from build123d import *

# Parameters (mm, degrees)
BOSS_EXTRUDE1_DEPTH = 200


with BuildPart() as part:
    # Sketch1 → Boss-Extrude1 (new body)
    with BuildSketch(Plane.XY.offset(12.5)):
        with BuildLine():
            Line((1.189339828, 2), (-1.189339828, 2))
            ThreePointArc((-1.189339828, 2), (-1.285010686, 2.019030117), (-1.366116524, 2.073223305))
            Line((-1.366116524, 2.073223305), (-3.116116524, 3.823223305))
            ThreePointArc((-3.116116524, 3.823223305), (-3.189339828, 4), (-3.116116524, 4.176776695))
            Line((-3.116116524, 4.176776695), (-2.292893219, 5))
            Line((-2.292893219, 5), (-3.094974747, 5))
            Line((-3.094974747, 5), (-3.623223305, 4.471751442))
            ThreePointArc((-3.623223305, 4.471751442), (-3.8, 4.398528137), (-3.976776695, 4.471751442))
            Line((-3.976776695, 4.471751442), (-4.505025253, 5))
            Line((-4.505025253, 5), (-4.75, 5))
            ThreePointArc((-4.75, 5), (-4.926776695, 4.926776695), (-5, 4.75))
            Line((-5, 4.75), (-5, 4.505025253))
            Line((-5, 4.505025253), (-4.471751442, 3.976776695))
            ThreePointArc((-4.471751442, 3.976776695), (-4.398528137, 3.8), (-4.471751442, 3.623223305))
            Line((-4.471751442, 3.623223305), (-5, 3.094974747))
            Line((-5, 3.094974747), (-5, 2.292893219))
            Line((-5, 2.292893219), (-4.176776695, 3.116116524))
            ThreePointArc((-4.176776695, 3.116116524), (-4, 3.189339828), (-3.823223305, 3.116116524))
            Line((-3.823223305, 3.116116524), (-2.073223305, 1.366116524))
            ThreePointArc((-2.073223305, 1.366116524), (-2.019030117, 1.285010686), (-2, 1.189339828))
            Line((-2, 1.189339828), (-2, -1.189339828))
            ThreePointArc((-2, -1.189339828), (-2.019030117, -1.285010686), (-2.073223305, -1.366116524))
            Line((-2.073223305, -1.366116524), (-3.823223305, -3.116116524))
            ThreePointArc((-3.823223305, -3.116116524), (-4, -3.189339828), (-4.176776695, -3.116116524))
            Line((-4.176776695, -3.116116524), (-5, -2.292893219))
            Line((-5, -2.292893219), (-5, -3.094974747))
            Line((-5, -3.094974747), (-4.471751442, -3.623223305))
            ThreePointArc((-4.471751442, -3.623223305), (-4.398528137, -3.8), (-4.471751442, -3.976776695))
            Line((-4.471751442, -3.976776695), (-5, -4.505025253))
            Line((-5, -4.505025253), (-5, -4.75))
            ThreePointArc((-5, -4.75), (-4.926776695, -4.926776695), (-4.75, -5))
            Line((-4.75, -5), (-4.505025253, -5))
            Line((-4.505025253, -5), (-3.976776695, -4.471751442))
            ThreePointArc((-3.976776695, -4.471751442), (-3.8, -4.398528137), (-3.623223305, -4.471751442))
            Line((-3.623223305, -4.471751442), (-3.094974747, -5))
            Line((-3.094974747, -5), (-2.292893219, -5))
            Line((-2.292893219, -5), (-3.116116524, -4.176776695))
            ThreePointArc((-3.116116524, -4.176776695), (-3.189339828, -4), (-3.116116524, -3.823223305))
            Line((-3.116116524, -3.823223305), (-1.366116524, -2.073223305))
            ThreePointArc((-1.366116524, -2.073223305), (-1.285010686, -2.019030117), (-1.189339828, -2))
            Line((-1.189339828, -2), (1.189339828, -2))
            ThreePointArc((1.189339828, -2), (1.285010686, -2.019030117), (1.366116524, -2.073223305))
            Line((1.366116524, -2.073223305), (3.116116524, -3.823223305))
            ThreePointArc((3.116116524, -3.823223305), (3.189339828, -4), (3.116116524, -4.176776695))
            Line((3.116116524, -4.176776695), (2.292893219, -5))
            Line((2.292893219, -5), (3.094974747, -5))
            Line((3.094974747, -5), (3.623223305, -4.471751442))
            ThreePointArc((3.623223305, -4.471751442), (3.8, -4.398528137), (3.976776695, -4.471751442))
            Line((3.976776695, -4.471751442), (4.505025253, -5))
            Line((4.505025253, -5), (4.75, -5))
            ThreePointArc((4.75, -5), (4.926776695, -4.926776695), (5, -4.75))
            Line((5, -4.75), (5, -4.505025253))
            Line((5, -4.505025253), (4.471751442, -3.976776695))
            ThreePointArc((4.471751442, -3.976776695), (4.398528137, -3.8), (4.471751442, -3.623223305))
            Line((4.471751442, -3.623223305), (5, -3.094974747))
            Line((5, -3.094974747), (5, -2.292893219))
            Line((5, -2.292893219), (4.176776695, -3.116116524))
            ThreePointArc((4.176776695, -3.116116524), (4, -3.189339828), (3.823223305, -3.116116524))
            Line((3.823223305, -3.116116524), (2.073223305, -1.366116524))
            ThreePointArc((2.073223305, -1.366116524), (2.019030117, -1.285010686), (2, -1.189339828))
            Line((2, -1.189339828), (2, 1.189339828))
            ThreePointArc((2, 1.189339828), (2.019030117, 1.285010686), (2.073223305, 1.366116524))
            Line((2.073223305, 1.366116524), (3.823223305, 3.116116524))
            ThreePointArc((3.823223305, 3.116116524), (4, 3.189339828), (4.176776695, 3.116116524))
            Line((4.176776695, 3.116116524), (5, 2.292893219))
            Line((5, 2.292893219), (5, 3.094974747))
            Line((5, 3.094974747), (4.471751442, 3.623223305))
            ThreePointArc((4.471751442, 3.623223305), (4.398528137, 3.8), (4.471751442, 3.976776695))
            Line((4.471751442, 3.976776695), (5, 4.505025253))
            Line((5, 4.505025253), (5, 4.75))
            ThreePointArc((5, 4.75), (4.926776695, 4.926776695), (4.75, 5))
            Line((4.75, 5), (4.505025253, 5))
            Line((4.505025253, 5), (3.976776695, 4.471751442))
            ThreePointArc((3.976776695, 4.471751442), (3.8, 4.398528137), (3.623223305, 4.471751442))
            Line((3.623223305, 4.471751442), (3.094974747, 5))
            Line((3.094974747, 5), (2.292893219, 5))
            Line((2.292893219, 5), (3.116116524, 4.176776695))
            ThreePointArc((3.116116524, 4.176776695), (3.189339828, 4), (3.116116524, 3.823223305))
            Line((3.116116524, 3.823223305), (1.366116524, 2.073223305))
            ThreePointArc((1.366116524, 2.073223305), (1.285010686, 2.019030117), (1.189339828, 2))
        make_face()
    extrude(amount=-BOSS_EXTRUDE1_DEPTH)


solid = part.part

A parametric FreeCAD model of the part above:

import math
import FreeCAD as App
import Part
import Sketcher
from FreeCAD import Vector
Q = App.Units.Quantity

doc = App.newDocument("Part")
body = doc.addObject("PartDesign::Body", "Body")

sketch1 = body.newObject("Sketcher::SketchObject", "Sketch")
sketch1.AttachmentSupport = (doc.getObject("XY_Plane"), [""])
sketch1.MapMode = "FlatFace"
sketch1.AttachmentOffset = App.Placement(Vector(0, 0, 12.5), App.Rotation())
sketch1.addGeometry([
    Part.LineSegment(Vector(1.19, 2, 0), Vector(-1.19, 2, 0)),
    Part.ArcOfCircle(Part.Circle(Vector(-1.19, 2.25, 0), Vector(0, 0, 1), 0.25), math.radians(-135), math.radians(-90)),
    Part.LineSegment(Vector(-1.37, 2.07, 0), Vector(-3.12, 3.82, 0)),
    Part.ArcOfCircle(Part.Circle(Vector(-2.94, 4, 0), Vector(0, 0, 1), 0.25), math.radians(135), math.radians(225)),
    Part.LineSegment(Vector(-3.12, 4.18, 0), Vector(-2.29, 5, 0)),
    Part.LineSegment(Vector(-2.29, 5, 0), Vector(-3.09, 5, 0)),
    Part.LineSegment(Vector(-3.09, 5, 0), Vector(-3.62, 4.47, 0)),
    Part.ArcOfCircle(Part.Circle(Vector(-3.8, 4.65, 0), Vector(0, 0, 1), 0.25), math.radians(-135), math.radians(-45)),
    Part.LineSegment(Vector(-3.98, 4.47, 0), Vector(-4.51, 5, 0)),
    Part.LineSegment(Vector(-4.51, 5, 0), Vector(-4.75, 5, 0)),
    Part.ArcOfCircle(Part.Circle(Vector(-4.75, 4.75, 0), Vector(0, 0, 1), 0.25), math.radians(90), math.radians(180)),
    Part.LineSegment(Vector(-5, 4.75, 0), Vector(-5, 4.51, 0)),
    Part.LineSegment(Vector(-5, 4.51, 0), Vector(-4.47, 3.98, 0)),
    Part.ArcOfCircle(Part.Circle(Vector(-4.65, 3.8, 0), Vector(0, 0, 1), 0.25), math.radians(-45), math.radians(45)),
    Part.LineSegment(Vector(-4.47, 3.62, 0), Vector(-5, 3.09, 0)),
    Part.LineSegment(Vector(-5, 3.09, 0), Vector(-5, 2.29, 0)),
    Part.LineSegment(Vector(-5, 2.29, 0), Vector(-4.18, 3.12, 0)),
    Part.ArcOfCircle(Part.Circle(Vector(-4, 2.94, 0), Vector(0, 0, 1), 0.25), math.radians(45), math.radians(135)),
    Part.LineSegment(Vector(-3.82, 3.12, 0), Vector(-2.07, 1.37, 0)),
    Part.ArcOfCircle(Part.Circle(Vector(-2.25, 1.19, 0), Vector(0, 0, 1), 0.25), math.radians(0), math.radians(45)),
    Part.LineSegment(Vector(-2, 1.19, 0), Vector(-2, -1.19, 0)),
    Part.ArcOfCircle(Part.Circle(Vector(-2.25, -1.19, 0), Vector(0, 0, 1), 0.25), math.radians(-45), math.radians(0)),
    Part.LineSegment(Vector(-2.07, -1.37, 0), Vector(-3.82, -3.12, 0)),
    Part.ArcOfCircle(Part.Circle(Vector(-4, -2.94, 0), Vector(0, 0, 1), 0.25), math.radians(-135), math.radians(-45)),
    Part.LineSegment(Vector(-4.18, -3.12, 0), Vector(-5, -2.29, 0)),
    Part.LineSegment(Vector(-5, -2.29, 0), Vector(-5, -3.09, 0)),
    Part.LineSegment(Vector(-5, -3.09, 0), Vector(-4.47, -3.62, 0)),
    Part.ArcOfCircle(Part.Circle(Vector(-4.65, -3.8, 0), Vector(0, 0, 1), 0.25), math.radians(-45), math.radians(45)),
    Part.LineSegment(Vector(-4.47, -3.98, 0), Vector(-5, -4.51, 0)),
    Part.LineSegment(Vector(-5, -4.51, 0), Vector(-5, -4.75, 0)),
    Part.ArcOfCircle(Part.Circle(Vector(-4.75, -4.75, 0), Vector(0, 0, 1), 0.25), math.radians(-180), math.radians(-90)),
    Part.LineSegment(Vector(-4.75, -5, 0), Vector(-4.51, -5, 0)),
    Part.LineSegment(Vector(-4.51, -5, 0), Vector(-3.98, -4.47, 0)),
    Part.ArcOfCircle(Part.Circle(Vector(-3.8, -4.65, 0), Vector(0, 0, 1), 0.25), math.radians(45), math.radians(135)),
    Part.LineSegment(Vector(-3.62, -4.47, 0), Vector(-3.09, -5, 0)),
    Part.LineSegment(Vector(-3.09, -5, 0), Vector(-2.29, -5, 0)),
    Part.LineSegment(Vector(-2.29, -5, 0), Vector(-3.12, -4.18, 0)),
    Part.ArcOfCircle(Part.Circle(Vector(-2.94, -4, 0), Vector(0, 0, 1), 0.25), math.radians(135), math.radians(225)),
    Part.LineSegment(Vector(-3.12, -3.82, 0), Vector(-1.37, -2.07, 0)),
    Part.ArcOfCircle(Part.Circle(Vector(-1.19, -2.25, 0), Vector(0, 0, 1), 0.25), math.radians(90), math.radians(135)),
    Part.LineSegment(Vector(-1.19, -2, 0), Vector(1.19, -2, 0)),
    Part.ArcOfCircle(Part.Circle(Vector(1.19, -2.25, 0), Vector(0, 0, 1), 0.25), math.radians(45), math.radians(90)),
    Part.LineSegment(Vector(1.37, -2.07, 0), Vector(3.12, -3.82, 0)),
    Part.ArcOfCircle(Part.Circle(Vector(2.94, -4, 0), Vector(0, 0, 1), 0.25), math.radians(-45), math.radians(45)),
    Part.LineSegment(Vector(3.12, -4.18, 0), Vector(2.29, -5, 0)),
    Part.LineSegment(Vector(2.29, -5, 0), Vector(3.09, -5, 0)),
    Part.LineSegment(Vector(3.09, -5, 0), Vector(3.62, -4.47, 0)),
    Part.ArcOfCircle(Part.Circle(Vector(3.8, -4.65, 0), Vector(0, 0, 1), 0.25), math.radians(45), math.radians(135)),
    Part.LineSegment(Vector(3.98, -4.47, 0), Vector(4.51, -5, 0)),
    Part.LineSegment(Vector(4.51, -5, 0), Vector(4.75, -5, 0)),
    Part.ArcOfCircle(Part.Circle(Vector(4.75, -4.75, 0), Vector(0, 0, 1), 0.25), math.radians(-90), math.radians(0)),
    Part.LineSegment(Vector(5, -4.75, 0), Vector(5, -4.51, 0)),
    Part.LineSegment(Vector(5, -4.51, 0), Vector(4.47, -3.98, 0)),
    Part.ArcOfCircle(Part.Circle(Vector(4.65, -3.8, 0), Vector(0, 0, 1), 0.25), math.radians(135), math.radians(225)),
    Part.LineSegment(Vector(4.47, -3.62, 0), Vector(5, -3.09, 0)),
    Part.LineSegment(Vector(5, -3.09, 0), Vector(5, -2.29, 0)),
    Part.LineSegment(Vector(5, -2.29, 0), Vector(4.18, -3.12, 0)),
    Part.ArcOfCircle(Part.Circle(Vector(4, -2.94, 0), Vector(0, 0, 1), 0.25), math.radians(-135), math.radians(-45)),
    Part.LineSegment(Vector(3.82, -3.12, 0), Vector(2.07, -1.37, 0)),
    Part.ArcOfCircle(Part.Circle(Vector(2.25, -1.19, 0), Vector(0, 0, 1), 0.25), math.radians(-180), math.radians(-135)),
    Part.LineSegment(Vector(2, -1.19, 0), Vector(2, 1.19, 0)),
    Part.ArcOfCircle(Part.Circle(Vector(2.25, 1.19, 0), Vector(0, 0, 1), 0.25), math.radians(135), math.radians(180)),
    Part.LineSegment(Vector(2.07, 1.37, 0), Vector(3.82, 3.12, 0)),
    Part.ArcOfCircle(Part.Circle(Vector(4, 2.94, 0), Vector(0, 0, 1), 0.25), math.radians(45), math.radians(135)),
    Part.LineSegment(Vector(4.18, 3.12, 0), Vector(5, 2.29, 0)),
    Part.LineSegment(Vector(5, 2.29, 0), Vector(5, 3.09, 0)),
    Part.LineSegment(Vector(5, 3.09, 0), Vector(4.47, 3.62, 0)),
    Part.ArcOfCircle(Part.Circle(Vector(4.65, 3.8, 0), Vector(0, 0, 1), 0.25), math.radians(135), math.radians(225)),
    Part.LineSegment(Vector(4.47, 3.98, 0), Vector(5, 4.51, 0)),
    Part.LineSegment(Vector(5, 4.51, 0), Vector(5, 4.75, 0)),
    Part.ArcOfCircle(Part.Circle(Vector(4.75, 4.75, 0), Vector(0, 0, 1), 0.25), math.radians(0), math.radians(90)),
    Part.LineSegment(Vector(4.75, 5, 0), Vector(4.51, 5, 0)),
    Part.LineSegment(Vector(4.51, 5, 0), Vector(3.98, 4.47, 0)),
    Part.ArcOfCircle(Part.Circle(Vector(3.8, 4.65, 0), Vector(0, 0, 1), 0.25), math.radians(-135), math.radians(-45)),
    Part.LineSegment(Vector(3.62, 4.47, 0), Vector(3.09, 5, 0)),
    Part.LineSegment(Vector(3.09, 5, 0), Vector(2.29, 5, 0)),
    Part.LineSegment(Vector(2.29, 5, 0), Vector(3.12, 4.18, 0)),
    Part.ArcOfCircle(Part.Circle(Vector(2.94, 4, 0), Vector(0, 0, 1), 0.25), math.radians(-45), math.radians(45)),
    Part.LineSegment(Vector(3.12, 3.82, 0), Vector(1.37, 2.07, 0)),
    Part.ArcOfCircle(Part.Circle(Vector(1.19, 2.25, 0), Vector(0, 0, 1), 0.25), math.radians(-90), math.radians(-45)),
], False)
sketch1.addConstraint([
    Sketcher.Constraint("Tangent", 0, 2, 1, 2),
    Sketcher.Constraint("Tangent", 1, 1, 2, 1),
    Sketcher.Constraint("Tangent", 2, 2, 3, 2),
    Sketcher.Constraint("Tangent", 3, 1, 4, 1),
    Sketcher.Constraint("Coincident", 4, 2, 5, 1),
    Sketcher.Constraint("Coincident", 5, 2, 6, 1),
    Sketcher.Constraint("Tangent", 6, 2, 7, 2),
    Sketcher.Constraint("Tangent", 7, 1, 8, 1),
    Sketcher.Constraint("Coincident", 8, 2, 9, 1),
    Sketcher.Constraint("Tangent", 9, 2, 10, 1),
    Sketcher.Constraint("Tangent", 10, 2, 11, 1),
    Sketcher.Constraint("Coincident", 11, 2, 12, 1),
    Sketcher.Constraint("Tangent", 12, 2, 13, 2),
    Sketcher.Constraint("Tangent", 13, 1, 14, 1),
    Sketcher.Constraint("Coincident", 14, 2, 15, 1),
    Sketcher.Constraint("Coincident", 15, 2, 16, 1),
    Sketcher.Constraint("Tangent", 16, 2, 17, 2),
    Sketcher.Constraint("Tangent", 17, 1, 18, 1),
    Sketcher.Constraint("Tangent", 18, 2, 19, 2),
    Sketcher.Constraint("Tangent", 19, 1, 20, 1),
    Sketcher.Constraint("Tangent", 20, 2, 21, 2),
    Sketcher.Constraint("Tangent", 21, 1, 22, 1),
    Sketcher.Constraint("Tangent", 22, 2, 23, 2),
    Sketcher.Constraint("Tangent", 23, 1, 24, 1),
    Sketcher.Constraint("Coincident", 24, 2, 25, 1),
    Sketcher.Constraint("Coincident", 25, 2, 26, 1),
    Sketcher.Constraint("Tangent", 26, 2, 27, 2),
    Sketcher.Constraint("Tangent", 27, 1, 28, 1),
    Sketcher.Constraint("Coincident", 28, 2, 29, 1),
    Sketcher.Constraint("Tangent", 29, 2, 30, 1),
    Sketcher.Constraint("Tangent", 30, 2, 31, 1),
    Sketcher.Constraint("Coincident", 31, 2, 32, 1),
    Sketcher.Constraint("Tangent", 32, 2, 33, 2),
    Sketcher.Constraint("Tangent", 33, 1, 34, 1),
    Sketcher.Constraint("Coincident", 34, 2, 35, 1),
    Sketcher.Constraint("Coincident", 35, 2, 36, 1),
    Sketcher.Constraint("Tangent", 36, 2, 37, 2),
    Sketcher.Constraint("Tangent", 37, 1, 38, 1),
    Sketcher.Constraint("Tangent", 38, 2, 39, 2),
    Sketcher.Constraint("Tangent", 39, 1, 40, 1),
    Sketcher.Constraint("Tangent", 40, 2, 41, 2),
    Sketcher.Constraint("Tangent", 41, 1, 42, 1),
    Sketcher.Constraint("Tangent", 42, 2, 43, 2),
    Sketcher.Constraint("Tangent", 43, 1, 44, 1),
    Sketcher.Constraint("Coincident", 44, 2, 45, 1),
    Sketcher.Constraint("Coincident", 45, 2, 46, 1),
    Sketcher.Constraint("Tangent", 46, 2, 47, 2),
    Sketcher.Constraint("Tangent", 47, 1, 48, 1),
    Sketcher.Constraint("Coincident", 48, 2, 49, 1),
    Sketcher.Constraint("Tangent", 49, 2, 50, 1),
    Sketcher.Constraint("Tangent", 50, 2, 51, 1),
    Sketcher.Constraint("Coincident", 51, 2, 52, 1),
    Sketcher.Constraint("Tangent", 52, 2, 53, 2),
    Sketcher.Constraint("Tangent", 53, 1, 54, 1),
    Sketcher.Constraint("Coincident", 54, 2, 55, 1),
    Sketcher.Constraint("Coincident", 55, 2, 56, 1),
    Sketcher.Constraint("Tangent", 56, 2, 57, 2),
    Sketcher.Constraint("Tangent", 57, 1, 58, 1),
    Sketcher.Constraint("Tangent", 58, 2, 59, 2),
    Sketcher.Constraint("Tangent", 59, 1, 60, 1),
    Sketcher.Constraint("Tangent", 60, 2, 61, 2),
    Sketcher.Constraint("Tangent", 61, 1, 62, 1),
    Sketcher.Constraint("Tangent", 62, 2, 63, 2),
    Sketcher.Constraint("Tangent", 63, 1, 64, 1),
    Sketcher.Constraint("Coincident", 64, 2, 65, 1),
    Sketcher.Constraint("Coincident", 65, 2, 66, 1),
    Sketcher.Constraint("Tangent", 66, 2, 67, 2),
    Sketcher.Constraint("Tangent", 67, 1, 68, 1),
    Sketcher.Constraint("Coincident", 68, 2, 69, 1),
    Sketcher.Constraint("Tangent", 69, 2, 70, 1),
    Sketcher.Constraint("Tangent", 70, 2, 71, 1),
    Sketcher.Constraint("Coincident", 71, 2, 72, 1),
    Sketcher.Constraint("Tangent", 72, 2, 73, 2),
    Sketcher.Constraint("Tangent", 73, 1, 74, 1),
    Sketcher.Constraint("Coincident", 74, 2, 75, 1),
    Sketcher.Constraint("Coincident", 75, 2, 76, 1),
    Sketcher.Constraint("Tangent", 76, 2, 77, 2),
    Sketcher.Constraint("Tangent", 77, 1, 78, 1),
    Sketcher.Constraint("Tangent", 78, 2, 79, 2),
    Sketcher.Constraint("Tangent", 79, 1, 0, 1),
    Sketcher.Constraint("Horizontal", 0),
    Sketcher.Constraint("Horizontal", 5),
    Sketcher.Constraint("Horizontal", 9),
    Sketcher.Constraint("Vertical", 11),
    Sketcher.Constraint("Vertical", 15),
    Sketcher.Constraint("Vertical", 20),
    Sketcher.Constraint("Vertical", 25),
    Sketcher.Constraint("Vertical", 29),
    Sketcher.Constraint("Horizontal", 31),
    Sketcher.Constraint("Horizontal", 35),
    Sketcher.Constraint("Horizontal", 40),
    Sketcher.Constraint("Horizontal", 45),
    Sketcher.Constraint("Horizontal", 49),
    Sketcher.Constraint("Vertical", 51),
    Sketcher.Constraint("Vertical", 55),
    Sketcher.Constraint("Vertical", 60),
    Sketcher.Constraint("Vertical", 65),
    Sketcher.Constraint("Vertical", 69),
    Sketcher.Constraint("Horizontal", 71),
    Sketcher.Constraint("Horizontal", 75),
    Sketcher.Constraint("Equal", 1, 3),
    Sketcher.Constraint("Equal", 3, 7),
    Sketcher.Constraint("Equal", 7, 10),
    Sketcher.Constraint("Equal", 10, 13),
    Sketcher.Constraint("Equal", 13, 17),
    Sketcher.Constraint("Equal", 17, 19),
    Sketcher.Constraint("Equal", 19, 21),
    Sketcher.Constraint("Equal", 21, 23),
    Sketcher.Constraint("Equal", 23, 27),
    Sketcher.Constraint("Equal", 27, 30),
    Sketcher.Constraint("Equal", 30, 33),
    Sketcher.Constraint("Equal", 33, 37),
    Sketcher.Constraint("Equal", 37, 39),
    Sketcher.Constraint("Equal", 39, 41),
    Sketcher.Constraint("Equal", 41, 43),
    Sketcher.Constraint("Equal", 43, 47),
    Sketcher.Constraint("Equal", 47, 50),
    Sketcher.Constraint("Equal", 50, 53),
    Sketcher.Constraint("Equal", 53, 57),
    Sketcher.Constraint("Equal", 57, 59),
    Sketcher.Constraint("Equal", 59, 61),
    Sketcher.Constraint("Equal", 61, 63),
    Sketcher.Constraint("Equal", 63, 67),
    Sketcher.Constraint("Equal", 67, 70),
    Sketcher.Constraint("Equal", 70, 73),
    Sketcher.Constraint("Equal", 73, 77),
    Sketcher.Constraint("Equal", 77, 79),
    Sketcher.Constraint("Symmetric", 1, 3, 41, 3, -1, 1),
    Sketcher.Constraint("Symmetric", 3, 3, 43, 3, -1, 1),
    Sketcher.Constraint("Symmetric", 7, 3, 47, 3, -1, 1),
    Sketcher.Constraint("Symmetric", 10, 3, 50, 3, -1, 1),
    Sketcher.Constraint("Symmetric", 13, 3, 53, 3, -1, 1),
    Sketcher.Constraint("Symmetric", 17, 3, 57, 3, -1, 1),
    Sketcher.Constraint("Symmetric", 19, 3, 59, 3, -1, 1),
    Sketcher.Constraint("Symmetric", 23, 3, 63, 3, -1, 1),
    Sketcher.Constraint("Symmetric", 27, 3, 67, 3, -1, 1),
    Sketcher.Constraint("Symmetric", 30, 3, 70, 3, -1, 1),
    Sketcher.Constraint("Symmetric", 33, 3, 73, 3, -1, 1),
    Sketcher.Constraint("Symmetric", 37, 3, 77, 3, -1, 1),
    Sketcher.Constraint("Symmetric", 4, 2, 44, 2, -1, 1),
    Sketcher.Constraint("Symmetric", 14, 2, 54, 2, -1, 1),
    Sketcher.Constraint("Symmetric", 24, 2, 64, 2, -1, 1),
    Sketcher.Constraint("Symmetric", 34, 2, 74, 2, -1, 1),
    Sketcher.Constraint("Symmetric", 37, 3, 43, 3, -2),
    Sketcher.Constraint("Symmetric", 33, 3, 47, 3, -2),
    Sketcher.Constraint("Symmetric", 30, 3, 50, 3, -2),
    Sketcher.Constraint("Symmetric", 27, 3, 53, 3, -2),
    Sketcher.Constraint("Symmetric", 23, 3, 57, 3, -2),
    Sketcher.Constraint("Symmetric", 35, 2, 44, 2, -2),
    Sketcher.Constraint("Symmetric", 25, 2, 54, 2, -2),
    Sketcher.Constraint("Perpendicular", 2, 4),
    Sketcher.Constraint("Parallel", 4, 6),
    Sketcher.Constraint("Perpendicular", 6, 8),
    Sketcher.Constraint("Parallel", 8, 12),
    Sketcher.Constraint("Perpendicular", 12, 14),
    Sketcher.Constraint("Parallel", 14, 16),
    Sketcher.Constraint("Perpendicular", 16, 18),
    Sketcher.Constraint("Perpendicular", 18, 22),
    Sketcher.Constraint("Perpendicular", 22, 24),
    Sketcher.Constraint("Parallel", 24, 26),
    Sketcher.Constraint("Perpendicular", 26, 28),
    Sketcher.Constraint("Parallel", 28, 32),
    Sketcher.Constraint("Perpendicular", 32, 34),
    Sketcher.Constraint("Perpendicular", 36, 38),
    Sketcher.Constraint("Parallel", 44, 46),
    Sketcher.Constraint("Perpendicular", 46, 48),
    Sketcher.Constraint("Parallel", 48, 52),
    Sketcher.Constraint("Parallel", 54, 56),
    Sketcher.Constraint("Perpendicular", 58, 62),
    Sketcher.Constraint("Parallel", 64, 66),
    Sketcher.Constraint("Perpendicular", 66, 68),
    Sketcher.Constraint("Parallel", 68, 72),
    Sketcher.Constraint("Parallel", 74, 76),
    Sketcher.Constraint("Perpendicular", 76, 78),
    Sketcher.Constraint("Horizontal", 5, 2, 8, 2),
    Sketcher.Constraint("Vertical", 11, 2, 14, 2),
    Sketcher.Constraint("Equal", 71, 11),
    Sketcher.Constraint("Equal", 75, 15),
    Sketcher.Constraint("Equal", 40, 20),
    Sketcher.Constraint("Equal", 8, 12),
    Sketcher.Constraint("Equal", 4, 16),
    Sketcher.Constraint("Equal", 2, 18),
    Sketcher.Constraint("Radius", 1, Q("0.25 mm")),
    Sketcher.Constraint("DistanceY", -1, 1, 3, 3, Q("4 mm")),
    Sketcher.Constraint("DistanceY", -1, 1, 0, 2, Q("2 mm")),
    Sketcher.Constraint("DistanceY", -1, 1, 4, 2, Q("5 mm")),
    Sketcher.Constraint("DistanceX", 7, 3, -1, 1, Q("3.8 mm")),
    Sketcher.Constraint("DistanceX", 0, 2, 0, 1, Q("2.37868 mm")),
    Sketcher.Constraint("DistanceX", 5, 2, 5, 1, Q("0.802082 mm")),
])
pad1 = body.newObject("PartDesign::Pad", "Pad")
pad1.Profile = sketch1
pad1.Length = 200
pad1.Reversed = True

doc.recompute()
